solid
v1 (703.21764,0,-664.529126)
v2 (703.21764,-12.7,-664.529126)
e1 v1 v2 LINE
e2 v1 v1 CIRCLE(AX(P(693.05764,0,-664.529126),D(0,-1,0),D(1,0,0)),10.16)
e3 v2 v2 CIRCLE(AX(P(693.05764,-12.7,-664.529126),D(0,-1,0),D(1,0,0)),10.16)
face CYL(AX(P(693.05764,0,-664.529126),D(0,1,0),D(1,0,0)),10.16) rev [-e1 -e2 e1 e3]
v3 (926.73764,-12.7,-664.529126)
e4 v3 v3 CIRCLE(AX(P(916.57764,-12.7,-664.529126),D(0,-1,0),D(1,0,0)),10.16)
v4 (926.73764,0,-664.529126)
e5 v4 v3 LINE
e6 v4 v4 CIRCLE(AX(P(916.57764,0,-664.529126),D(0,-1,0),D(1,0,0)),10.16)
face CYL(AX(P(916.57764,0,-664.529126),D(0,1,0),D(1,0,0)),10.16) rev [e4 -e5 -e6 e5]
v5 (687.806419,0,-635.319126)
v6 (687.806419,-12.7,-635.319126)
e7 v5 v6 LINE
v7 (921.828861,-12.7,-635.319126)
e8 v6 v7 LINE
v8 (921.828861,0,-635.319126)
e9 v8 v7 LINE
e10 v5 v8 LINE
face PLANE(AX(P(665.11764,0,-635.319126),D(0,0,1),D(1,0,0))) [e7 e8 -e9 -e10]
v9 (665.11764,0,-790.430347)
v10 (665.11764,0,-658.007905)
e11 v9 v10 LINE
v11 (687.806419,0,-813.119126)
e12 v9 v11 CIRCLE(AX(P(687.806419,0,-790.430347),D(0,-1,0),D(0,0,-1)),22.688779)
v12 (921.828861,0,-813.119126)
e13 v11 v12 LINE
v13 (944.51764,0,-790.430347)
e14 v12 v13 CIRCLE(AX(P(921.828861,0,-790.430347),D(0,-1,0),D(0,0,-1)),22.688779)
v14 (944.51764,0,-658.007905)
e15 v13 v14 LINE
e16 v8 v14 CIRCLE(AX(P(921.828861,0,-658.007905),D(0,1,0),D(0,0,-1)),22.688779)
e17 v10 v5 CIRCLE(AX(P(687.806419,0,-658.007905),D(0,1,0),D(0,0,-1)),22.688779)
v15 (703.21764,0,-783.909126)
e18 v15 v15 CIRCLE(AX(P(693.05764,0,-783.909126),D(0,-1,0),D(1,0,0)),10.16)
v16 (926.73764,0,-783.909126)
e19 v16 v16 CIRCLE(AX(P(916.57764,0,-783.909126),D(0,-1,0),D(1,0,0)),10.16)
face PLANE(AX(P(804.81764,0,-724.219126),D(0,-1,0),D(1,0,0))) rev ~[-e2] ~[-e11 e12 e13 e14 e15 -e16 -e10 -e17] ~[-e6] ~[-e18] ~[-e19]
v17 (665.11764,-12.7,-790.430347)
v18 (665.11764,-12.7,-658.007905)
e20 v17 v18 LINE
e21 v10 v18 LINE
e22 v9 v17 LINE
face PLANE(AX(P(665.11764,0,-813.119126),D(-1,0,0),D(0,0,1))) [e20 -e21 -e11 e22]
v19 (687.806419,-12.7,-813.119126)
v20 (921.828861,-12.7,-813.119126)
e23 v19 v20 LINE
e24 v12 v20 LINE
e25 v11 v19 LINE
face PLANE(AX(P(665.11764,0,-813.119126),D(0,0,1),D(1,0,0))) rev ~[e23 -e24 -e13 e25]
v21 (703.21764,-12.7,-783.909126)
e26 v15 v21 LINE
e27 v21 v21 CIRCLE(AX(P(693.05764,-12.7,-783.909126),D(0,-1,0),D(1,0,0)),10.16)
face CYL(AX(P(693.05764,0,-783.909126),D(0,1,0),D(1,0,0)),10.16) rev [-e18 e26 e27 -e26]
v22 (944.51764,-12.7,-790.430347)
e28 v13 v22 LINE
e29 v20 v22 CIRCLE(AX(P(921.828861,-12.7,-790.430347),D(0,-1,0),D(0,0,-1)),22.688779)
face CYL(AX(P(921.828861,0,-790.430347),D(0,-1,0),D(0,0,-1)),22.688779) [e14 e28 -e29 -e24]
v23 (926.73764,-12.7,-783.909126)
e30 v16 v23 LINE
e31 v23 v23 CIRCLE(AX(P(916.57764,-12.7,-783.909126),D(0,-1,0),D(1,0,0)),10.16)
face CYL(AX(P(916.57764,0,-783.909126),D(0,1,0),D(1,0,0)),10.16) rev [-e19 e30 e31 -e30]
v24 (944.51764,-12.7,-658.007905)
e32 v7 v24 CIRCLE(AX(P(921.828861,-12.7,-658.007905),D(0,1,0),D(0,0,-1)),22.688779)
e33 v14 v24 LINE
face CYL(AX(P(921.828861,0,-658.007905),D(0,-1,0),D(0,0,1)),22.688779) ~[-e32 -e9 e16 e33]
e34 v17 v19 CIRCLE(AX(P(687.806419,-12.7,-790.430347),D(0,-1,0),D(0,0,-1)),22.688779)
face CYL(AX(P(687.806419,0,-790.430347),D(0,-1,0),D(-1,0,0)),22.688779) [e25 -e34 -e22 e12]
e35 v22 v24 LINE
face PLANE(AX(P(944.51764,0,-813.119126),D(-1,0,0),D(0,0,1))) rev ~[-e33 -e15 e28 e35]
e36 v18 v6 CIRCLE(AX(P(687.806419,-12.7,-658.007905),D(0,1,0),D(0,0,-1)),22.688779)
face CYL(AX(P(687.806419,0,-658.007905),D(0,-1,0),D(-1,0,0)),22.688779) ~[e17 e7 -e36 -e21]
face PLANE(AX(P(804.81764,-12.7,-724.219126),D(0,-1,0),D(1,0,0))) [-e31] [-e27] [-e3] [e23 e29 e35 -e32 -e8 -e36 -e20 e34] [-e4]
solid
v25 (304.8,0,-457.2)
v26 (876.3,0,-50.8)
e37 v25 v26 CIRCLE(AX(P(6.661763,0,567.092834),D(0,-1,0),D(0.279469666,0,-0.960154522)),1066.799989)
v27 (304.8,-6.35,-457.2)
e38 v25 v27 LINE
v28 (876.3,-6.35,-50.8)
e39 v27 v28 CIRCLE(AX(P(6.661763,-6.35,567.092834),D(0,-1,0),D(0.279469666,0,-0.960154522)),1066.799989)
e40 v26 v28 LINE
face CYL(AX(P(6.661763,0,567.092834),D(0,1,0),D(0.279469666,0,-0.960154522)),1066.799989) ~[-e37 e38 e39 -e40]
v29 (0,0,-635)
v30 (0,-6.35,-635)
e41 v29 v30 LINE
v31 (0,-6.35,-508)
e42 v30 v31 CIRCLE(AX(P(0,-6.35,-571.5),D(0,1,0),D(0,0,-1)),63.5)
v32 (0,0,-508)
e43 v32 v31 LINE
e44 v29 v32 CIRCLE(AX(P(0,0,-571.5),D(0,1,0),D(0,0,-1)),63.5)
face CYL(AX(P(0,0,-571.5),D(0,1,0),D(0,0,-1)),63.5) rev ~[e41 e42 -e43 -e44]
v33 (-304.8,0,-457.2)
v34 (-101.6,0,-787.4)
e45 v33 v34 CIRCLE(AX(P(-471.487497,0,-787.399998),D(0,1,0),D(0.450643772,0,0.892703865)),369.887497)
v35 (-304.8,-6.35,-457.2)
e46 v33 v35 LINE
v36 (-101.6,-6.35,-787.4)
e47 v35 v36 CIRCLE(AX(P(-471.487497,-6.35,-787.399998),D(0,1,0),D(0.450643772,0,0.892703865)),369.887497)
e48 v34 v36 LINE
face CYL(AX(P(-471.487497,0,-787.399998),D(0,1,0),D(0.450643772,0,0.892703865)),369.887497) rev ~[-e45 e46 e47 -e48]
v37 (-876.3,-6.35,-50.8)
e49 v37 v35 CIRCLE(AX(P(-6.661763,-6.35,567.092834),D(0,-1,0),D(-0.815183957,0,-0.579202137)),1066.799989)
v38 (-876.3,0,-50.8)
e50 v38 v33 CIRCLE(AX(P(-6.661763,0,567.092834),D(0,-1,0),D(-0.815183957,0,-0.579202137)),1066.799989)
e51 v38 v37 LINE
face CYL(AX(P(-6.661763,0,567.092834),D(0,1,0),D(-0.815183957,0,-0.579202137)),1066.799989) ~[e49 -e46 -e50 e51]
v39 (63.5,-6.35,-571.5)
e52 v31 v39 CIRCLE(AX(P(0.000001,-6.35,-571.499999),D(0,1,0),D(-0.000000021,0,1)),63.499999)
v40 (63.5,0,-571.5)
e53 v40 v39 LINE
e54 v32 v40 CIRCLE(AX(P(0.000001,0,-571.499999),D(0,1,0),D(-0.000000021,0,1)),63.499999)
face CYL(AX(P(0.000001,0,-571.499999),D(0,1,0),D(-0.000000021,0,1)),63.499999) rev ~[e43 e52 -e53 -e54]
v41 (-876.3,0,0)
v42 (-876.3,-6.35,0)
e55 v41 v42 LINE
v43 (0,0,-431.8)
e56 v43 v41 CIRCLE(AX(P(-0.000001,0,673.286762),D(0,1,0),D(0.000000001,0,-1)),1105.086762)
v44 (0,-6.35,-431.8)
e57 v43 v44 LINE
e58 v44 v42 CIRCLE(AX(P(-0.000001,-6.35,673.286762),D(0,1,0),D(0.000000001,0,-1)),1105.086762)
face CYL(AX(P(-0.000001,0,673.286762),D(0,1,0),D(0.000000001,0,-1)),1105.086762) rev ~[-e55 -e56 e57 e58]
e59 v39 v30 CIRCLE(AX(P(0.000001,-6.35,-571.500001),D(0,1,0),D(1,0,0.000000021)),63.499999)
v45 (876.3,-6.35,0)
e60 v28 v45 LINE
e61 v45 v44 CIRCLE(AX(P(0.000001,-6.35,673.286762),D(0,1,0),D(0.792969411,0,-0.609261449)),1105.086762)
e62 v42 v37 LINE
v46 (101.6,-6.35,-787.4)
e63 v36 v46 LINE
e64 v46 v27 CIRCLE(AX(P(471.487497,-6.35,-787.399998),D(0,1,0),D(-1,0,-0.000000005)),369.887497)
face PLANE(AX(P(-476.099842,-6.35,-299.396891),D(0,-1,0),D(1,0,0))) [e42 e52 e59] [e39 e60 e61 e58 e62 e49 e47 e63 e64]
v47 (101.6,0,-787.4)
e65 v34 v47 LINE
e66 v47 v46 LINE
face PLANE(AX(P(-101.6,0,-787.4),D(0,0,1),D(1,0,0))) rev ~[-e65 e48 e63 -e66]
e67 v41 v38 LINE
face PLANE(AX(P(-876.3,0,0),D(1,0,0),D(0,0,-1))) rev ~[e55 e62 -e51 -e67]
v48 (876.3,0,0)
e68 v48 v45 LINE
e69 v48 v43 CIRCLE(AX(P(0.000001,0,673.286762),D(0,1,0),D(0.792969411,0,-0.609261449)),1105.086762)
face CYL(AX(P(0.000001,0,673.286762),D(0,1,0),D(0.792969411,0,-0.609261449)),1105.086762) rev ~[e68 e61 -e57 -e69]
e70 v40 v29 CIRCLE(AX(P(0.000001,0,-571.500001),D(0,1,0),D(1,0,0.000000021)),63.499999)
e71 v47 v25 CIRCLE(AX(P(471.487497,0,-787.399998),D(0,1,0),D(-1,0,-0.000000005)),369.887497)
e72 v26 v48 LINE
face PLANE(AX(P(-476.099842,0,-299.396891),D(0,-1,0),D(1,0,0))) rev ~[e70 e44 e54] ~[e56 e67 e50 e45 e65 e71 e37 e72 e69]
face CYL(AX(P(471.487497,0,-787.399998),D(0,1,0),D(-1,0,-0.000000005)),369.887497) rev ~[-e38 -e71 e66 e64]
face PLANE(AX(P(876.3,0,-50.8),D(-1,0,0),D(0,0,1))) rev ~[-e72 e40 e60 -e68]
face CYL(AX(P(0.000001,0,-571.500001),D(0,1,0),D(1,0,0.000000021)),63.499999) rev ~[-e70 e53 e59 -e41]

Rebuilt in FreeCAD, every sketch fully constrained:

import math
import FreeCAD as App
import Part
import Sketcher
Q = App.Units.Quantity


def edges_at(feature, points):
    """Names of the edges that pass closest to the given points."""
    edges = feature.Shape.Edges
    near = lambda p: min(range(len(edges)), key=lambda i: edges[i].distToShape(Part.Vertex(*p))[0])
    return sorted({f"Edge{near(p) + 1}" for p in points})


def add_polygon(sketch, points):
    """Adds a closed chain of lines whose ends are joined by coincident constraints."""
    first, n = sketch.GeometryCount, len(points)
    for a, b in zip(points, points[1:] + points[:1]):
        sketch.addGeometry(Part.LineSegment(App.Vector(*a, 0), App.Vector(*b, 0)), False)
    for i in range(n):
        sketch.addConstraint(Sketcher.Constraint("Coincident", first + i, 2, first + (i + 1) % n, 1))

doc = App.newDocument("Part")
params = doc.addObject("Spreadsheet::Sheet", "Params")
for row, (alias, value) in enumerate([
    ("sketch1_radius", "2.5 in"),
    ("sketch1_width", "8 in"),
    ("sketch1_height", "2 in"),
    ("sketch1_radius2", "14.5624999 in"),
    ("pad1_length", "0.25 in"),
    ("sketch2_diameter", "0.8 in"),
    ("sketch2_width", "11 in"),
    ("sketch2_height", "7 in"),
    ("pad2_length", "0.5 in"),
    ("fillet_radius", "22.688779 mm"),
], start=1):
    params.set(f"A{row}", alias)
    params.set(f"B{row}", "=" + value)
    params.setAlias(f"B{row}", alias)

body = doc.addObject("PartDesign::Body", "Body")

sketch1 = doc.addObject("Sketcher::SketchObject", "Sketch")
body.addObject(sketch1)
sketch1.AttachmentSupport = (doc.XZ_Plane, [""])
sketch1.MapMode = "FlatFace"
sketch1.addGeometry(Part.ArcOfCircle(Part.Circle(App.Vector(0, 673, 0), App.Vector(0, 0, 1), 1105), math.radians(-142), math.radians(-90)), False)
sketch1.addGeometry(Part.LineSegment(App.Vector(-876, 0, 0), App.Vector(-876, -51, 0)), False)
sketch1.addGeometry(Part.ArcOfCircle(Part.Circle(App.Vector(-7, 567, 0), App.Vector(0, 0, 1), 1067), math.radians(-145), math.radians(-106)), False)
sketch1.addGeometry(Part.ArcOfCircle(Part.Circle(App.Vector(-471, -787, 0), App.Vector(0, 0, 1), 370), math.radians(0), math.radians(63)), False)
sketch1.addGeometry(Part.LineSegment(App.Vector(-102, -787, 0), App.Vector(102, -787, 0)), False)
sketch1.addGeometry(Part.ArcOfCircle(Part.Circle(App.Vector(471, -787, 0), App.Vector(0, 0, 1), 370), math.radians(117), math.radians(180)), False)
sketch1.addGeometry(Part.ArcOfCircle(Part.Circle(App.Vector(7, 567, 0), App.Vector(0, 0, 1), 1067), math.radians(-74), math.radians(-35)), False)
sketch1.addGeometry(Part.LineSegment(App.Vector(876, -51, 0), App.Vector(876, 0, 0)), False)
sketch1.addGeometry(Part.ArcOfCircle(Part.Circle(App.Vector(0, 673, 0), App.Vector(0, 0, 1), 1105), math.radians(-90), math.radians(-38)), False)
sketch1.addGeometry(Part.ArcOfCircle(Part.Circle(App.Vector(0, -572, 0), App.Vector(0, 0, 1), 64), math.radians(90), math.radians(270)), False)
sketch1.addGeometry(Part.ArcOfCircle(Part.Circle(App.Vector(0, -571, 0), App.Vector(0, 0, 1), 63), math.radians(0), math.radians(90)), False)
sketch1.addGeometry(Part.ArcOfCircle(Part.Circle(App.Vector(0, -572, 0), App.Vector(0, 0, 1), 63), math.radians(-90), math.radians(0)), False)
sketch1.addConstraint(Sketcher.Constraint("Coincident", 0, 1, 1, 1))
sketch1.addConstraint(Sketcher.Constraint("Coincident", 1, 2, 2, 1))
sketch1.addConstraint(Sketcher.Constraint("Coincident", 2, 2, 3, 2))
sketch1.addConstraint(Sketcher.Constraint("Coincident", 3, 1, 4, 1))
sketch1.addConstraint(Sketcher.Constraint("Coincident", 4, 2, 5, 2))
sketch1.addConstraint(Sketcher.Constraint("Coincident", 5, 1, 6, 1))
sketch1.addConstraint(Sketcher.Constraint("Coincident", 6, 2, 7, 1))
sketch1.addConstraint(Sketcher.Constraint("Coincident", 7, 2, 8, 2))
sketch1.addConstraint(Sketcher.Constraint("Coincident", 8, 1, 0, 2))
sketch1.addConstraint(Sketcher.Constraint("Tangent", 9, 1, 10, 2))
sketch1.addConstraint(Sketcher.Constraint("Tangent", 10, 1, 11, 2))
sketch1.addConstraint(Sketcher.Constraint("Tangent", 11, 1, 9, 2))
sketch1.addConstraint(Sketcher.Constraint("Vertical", 1))
sketch1.addConstraint(Sketcher.Constraint("Horizontal", 4))
sketch1.addConstraint(Sketcher.Constraint("Vertical", 7))
sketch1.addConstraint(Sketcher.Constraint("Coincident", 8, 3, 0, 3))
sketch1.addConstraint(Sketcher.Constraint("Equal", 3, 5))
sketch1.addConstraint(Sketcher.Constraint("Equal", 2, 6))
sketch1.addConstraint(Sketcher.Constraint("Symmetric", 3, 3, 5, 3, -2))
sketch1.addConstraint(Sketcher.Constraint("Symmetric", 2, 3, 6, 3, -2))
sketch1.addConstraint(Sketcher.Constraint("PointOnObject", 0, 3, -2))
sketch1.addConstraint(Sketcher.Constraint("PointOnObject", 9, 3, -2))
sketch1.addConstraint(Sketcher.Constraint("PointOnObject", 7, 2, -1))
sketch1.addConstraint(Sketcher.Constraint("PointOnObject", 8, 1, -2))
sketch1.addConstraint(Sketcher.Constraint("PointOnObject", 9, 1, -2))
sketch1.addConstraint(Sketcher.Constraint("PointOnObject", 11, 1, -2))
sketch1.addConstraint(Sketcher.Constraint("Horizontal", 11, 3, 10, 1))
sketch1.addConstraint(Sketcher.Constraint("Equal", 1, 7))
sketch1.addConstraint(Sketcher.Constraint("Radius", 9, Q("2.5 in")))
sketch1.addConstraint(Sketcher.Constraint("DistanceX", 4, 1, 4, 2, Q("8 in")))
sketch1.addConstraint(Sketcher.Constraint("DistanceY", 1, 2, 1, 1, Q("2 in")))
sketch1.addConstraint(Sketcher.Constraint("DistanceY", 3, 3, -1, 1, Q("30.9999999 in")))
sketch1.addConstraint(Sketcher.Constraint("DistanceX", 2, 2, -1, 1, Q("12 in")))
sketch1.addConstraint(Sketcher.Constraint("DistanceY", 4, 2, -1, 1, Q("31 in")))
sketch1.addConstraint(Sketcher.Constraint("DistanceY", 8, 1, -1, 1, Q("17 in")))
sketch1.addConstraint(Sketcher.Constraint("DistanceY", 9, 1, -1, 1, Q("20 in")))
sketch1.addConstraint(Sketcher.Constraint("Radius", 3, Q("14.5624999 in")))
sketch1.addConstraint(Sketcher.Constraint("DistanceX", 1, 2, -1, 1, Q("34.5 in")))
sketch1.addConstraint(Sketcher.Constraint("Radius", 2, 1066.799989))
sketch1.setExpression("Constraints[28]", "Params.sketch1_radius")
sketch1.setExpression("Constraints[29]", "Params.sketch1_width")
sketch1.setExpression("Constraints[30]", "Params.sketch1_height")
sketch1.setExpression("Constraints[36]", "Params.sketch1_radius2")
pad1 = doc.addObject("PartDesign::Pad", "Pad")
body.addObject(pad1)
pad1.Profile = sketch1
pad1.setExpression("Length", "Params.pad1_length")
body2 = doc.addObject("PartDesign::Body", "Body001")

sketch2 = doc.addObject("Sketcher::SketchObject", "Sketch001")
body2.addObject(sketch2)
sketch2.AttachmentSupport = (doc.getObject("XZ_Plane001"), [""])
sketch2.MapMode = "FlatFace"
add_polygon(sketch2, [(665, -635), (665, -813), (945, -813), (945, -635)])
sketch2.addGeometry(Part.Circle(App.Vector(693, -784, 0), App.Vector(0, 0, 1), 10), False)
sketch2.addGeometry(Part.Circle(App.Vector(917, -784, 0), App.Vector(0, 0, 1), 10), False)
sketch2.addGeometry(Part.Circle(App.Vector(693, -665, 0), App.Vector(0, 0, 1), 10), False)
sketch2.addGeometry(Part.Circle(App.Vector(917, -665, 0), App.Vector(0, 0, 1), 10), False)
sketch2.addConstraint(Sketcher.Constraint("Vertical", 0))
sketch2.addConstraint(Sketcher.Constraint("Horizontal", 1))
sketch2.addConstraint(Sketcher.Constraint("Vertical", 2))
sketch2.addConstraint(Sketcher.Constraint("Horizontal", 3))
sketch2.addConstraint(Sketcher.Constraint("Equal", 4, 5))
sketch2.addConstraint(Sketcher.Constraint("Equal", 5, 6))
sketch2.addConstraint(Sketcher.Constraint("Equal", 6, 7))
sketch2.addConstraint(Sketcher.Constraint("Horizontal", 4, 3, 5, 3))
sketch2.addConstraint(Sketcher.Constraint("Horizontal", 6, 3, 7, 3))
sketch2.addConstraint(Sketcher.Constraint("Vertical", 4, 3, 6, 3))
sketch2.addConstraint(Sketcher.Constraint("Vertical", 5, 3, 7, 3))
sketch2.addConstraint(Sketcher.Constraint("Diameter", 4, Q("0.8 in")))
sketch2.addConstraint(Sketcher.Constraint("DistanceX", 1, 1, 1, 2, Q("11 in")))
sketch2.addConstraint(Sketcher.Constraint("DistanceY", 0, 2, 0, 1, Q("7 in")))
sketch2.addConstraint(Sketcher.Constraint("DistanceX", 4, 3, 5, 3, Q("8.8 in")))
sketch2.addConstraint(Sketcher.Constraint("DistanceY", 4, 3, 6, 3, Q("4.7 in")))
sketch2.addConstraint(Sketcher.Constraint("DistanceX", 0, 2, 4, 3, Q("1.1 in")))
sketch2.addConstraint(Sketcher.Constraint("DistanceY", 0, 2, 4, 3, Q("1.15 in")))
sketch2.addConstraint(Sketcher.Constraint("DistanceX", -1, 1, 4, 3, 693.05764))
sketch2.addConstraint(Sketcher.Constraint("DistanceY", 4, 3, -1, 1, 783.909126))
sketch2.setExpression("Constraints[15]", "Params.sketch2_diameter")
sketch2.setExpression("Constraints[16]", "Params.sketch2_width")
sketch2.setExpression("Constraints[17]", "Params.sketch2_height")
pad2 = doc.addObject("PartDesign::Pad", "Pad001")
body2.addObject(pad2)
pad2.Profile = sketch2
pad2.setExpression("Length", "Params.pad2_length")
doc.recompute()

fillet = doc.addObject("PartDesign::Fillet", "Fillet")
body2.addObject(fillet)
fillet.Base = (pad2, edges_at(pad2, [
    (665.118, -6.35, -635.319),
    (665.118, -6.35, -813.119),
    (944.518, -6.35, -635.319),
    (944.518, -6.35, -813.119),
]))
fillet.setExpression("Radius", "Params.fillet_radius")

doc.recompute()
